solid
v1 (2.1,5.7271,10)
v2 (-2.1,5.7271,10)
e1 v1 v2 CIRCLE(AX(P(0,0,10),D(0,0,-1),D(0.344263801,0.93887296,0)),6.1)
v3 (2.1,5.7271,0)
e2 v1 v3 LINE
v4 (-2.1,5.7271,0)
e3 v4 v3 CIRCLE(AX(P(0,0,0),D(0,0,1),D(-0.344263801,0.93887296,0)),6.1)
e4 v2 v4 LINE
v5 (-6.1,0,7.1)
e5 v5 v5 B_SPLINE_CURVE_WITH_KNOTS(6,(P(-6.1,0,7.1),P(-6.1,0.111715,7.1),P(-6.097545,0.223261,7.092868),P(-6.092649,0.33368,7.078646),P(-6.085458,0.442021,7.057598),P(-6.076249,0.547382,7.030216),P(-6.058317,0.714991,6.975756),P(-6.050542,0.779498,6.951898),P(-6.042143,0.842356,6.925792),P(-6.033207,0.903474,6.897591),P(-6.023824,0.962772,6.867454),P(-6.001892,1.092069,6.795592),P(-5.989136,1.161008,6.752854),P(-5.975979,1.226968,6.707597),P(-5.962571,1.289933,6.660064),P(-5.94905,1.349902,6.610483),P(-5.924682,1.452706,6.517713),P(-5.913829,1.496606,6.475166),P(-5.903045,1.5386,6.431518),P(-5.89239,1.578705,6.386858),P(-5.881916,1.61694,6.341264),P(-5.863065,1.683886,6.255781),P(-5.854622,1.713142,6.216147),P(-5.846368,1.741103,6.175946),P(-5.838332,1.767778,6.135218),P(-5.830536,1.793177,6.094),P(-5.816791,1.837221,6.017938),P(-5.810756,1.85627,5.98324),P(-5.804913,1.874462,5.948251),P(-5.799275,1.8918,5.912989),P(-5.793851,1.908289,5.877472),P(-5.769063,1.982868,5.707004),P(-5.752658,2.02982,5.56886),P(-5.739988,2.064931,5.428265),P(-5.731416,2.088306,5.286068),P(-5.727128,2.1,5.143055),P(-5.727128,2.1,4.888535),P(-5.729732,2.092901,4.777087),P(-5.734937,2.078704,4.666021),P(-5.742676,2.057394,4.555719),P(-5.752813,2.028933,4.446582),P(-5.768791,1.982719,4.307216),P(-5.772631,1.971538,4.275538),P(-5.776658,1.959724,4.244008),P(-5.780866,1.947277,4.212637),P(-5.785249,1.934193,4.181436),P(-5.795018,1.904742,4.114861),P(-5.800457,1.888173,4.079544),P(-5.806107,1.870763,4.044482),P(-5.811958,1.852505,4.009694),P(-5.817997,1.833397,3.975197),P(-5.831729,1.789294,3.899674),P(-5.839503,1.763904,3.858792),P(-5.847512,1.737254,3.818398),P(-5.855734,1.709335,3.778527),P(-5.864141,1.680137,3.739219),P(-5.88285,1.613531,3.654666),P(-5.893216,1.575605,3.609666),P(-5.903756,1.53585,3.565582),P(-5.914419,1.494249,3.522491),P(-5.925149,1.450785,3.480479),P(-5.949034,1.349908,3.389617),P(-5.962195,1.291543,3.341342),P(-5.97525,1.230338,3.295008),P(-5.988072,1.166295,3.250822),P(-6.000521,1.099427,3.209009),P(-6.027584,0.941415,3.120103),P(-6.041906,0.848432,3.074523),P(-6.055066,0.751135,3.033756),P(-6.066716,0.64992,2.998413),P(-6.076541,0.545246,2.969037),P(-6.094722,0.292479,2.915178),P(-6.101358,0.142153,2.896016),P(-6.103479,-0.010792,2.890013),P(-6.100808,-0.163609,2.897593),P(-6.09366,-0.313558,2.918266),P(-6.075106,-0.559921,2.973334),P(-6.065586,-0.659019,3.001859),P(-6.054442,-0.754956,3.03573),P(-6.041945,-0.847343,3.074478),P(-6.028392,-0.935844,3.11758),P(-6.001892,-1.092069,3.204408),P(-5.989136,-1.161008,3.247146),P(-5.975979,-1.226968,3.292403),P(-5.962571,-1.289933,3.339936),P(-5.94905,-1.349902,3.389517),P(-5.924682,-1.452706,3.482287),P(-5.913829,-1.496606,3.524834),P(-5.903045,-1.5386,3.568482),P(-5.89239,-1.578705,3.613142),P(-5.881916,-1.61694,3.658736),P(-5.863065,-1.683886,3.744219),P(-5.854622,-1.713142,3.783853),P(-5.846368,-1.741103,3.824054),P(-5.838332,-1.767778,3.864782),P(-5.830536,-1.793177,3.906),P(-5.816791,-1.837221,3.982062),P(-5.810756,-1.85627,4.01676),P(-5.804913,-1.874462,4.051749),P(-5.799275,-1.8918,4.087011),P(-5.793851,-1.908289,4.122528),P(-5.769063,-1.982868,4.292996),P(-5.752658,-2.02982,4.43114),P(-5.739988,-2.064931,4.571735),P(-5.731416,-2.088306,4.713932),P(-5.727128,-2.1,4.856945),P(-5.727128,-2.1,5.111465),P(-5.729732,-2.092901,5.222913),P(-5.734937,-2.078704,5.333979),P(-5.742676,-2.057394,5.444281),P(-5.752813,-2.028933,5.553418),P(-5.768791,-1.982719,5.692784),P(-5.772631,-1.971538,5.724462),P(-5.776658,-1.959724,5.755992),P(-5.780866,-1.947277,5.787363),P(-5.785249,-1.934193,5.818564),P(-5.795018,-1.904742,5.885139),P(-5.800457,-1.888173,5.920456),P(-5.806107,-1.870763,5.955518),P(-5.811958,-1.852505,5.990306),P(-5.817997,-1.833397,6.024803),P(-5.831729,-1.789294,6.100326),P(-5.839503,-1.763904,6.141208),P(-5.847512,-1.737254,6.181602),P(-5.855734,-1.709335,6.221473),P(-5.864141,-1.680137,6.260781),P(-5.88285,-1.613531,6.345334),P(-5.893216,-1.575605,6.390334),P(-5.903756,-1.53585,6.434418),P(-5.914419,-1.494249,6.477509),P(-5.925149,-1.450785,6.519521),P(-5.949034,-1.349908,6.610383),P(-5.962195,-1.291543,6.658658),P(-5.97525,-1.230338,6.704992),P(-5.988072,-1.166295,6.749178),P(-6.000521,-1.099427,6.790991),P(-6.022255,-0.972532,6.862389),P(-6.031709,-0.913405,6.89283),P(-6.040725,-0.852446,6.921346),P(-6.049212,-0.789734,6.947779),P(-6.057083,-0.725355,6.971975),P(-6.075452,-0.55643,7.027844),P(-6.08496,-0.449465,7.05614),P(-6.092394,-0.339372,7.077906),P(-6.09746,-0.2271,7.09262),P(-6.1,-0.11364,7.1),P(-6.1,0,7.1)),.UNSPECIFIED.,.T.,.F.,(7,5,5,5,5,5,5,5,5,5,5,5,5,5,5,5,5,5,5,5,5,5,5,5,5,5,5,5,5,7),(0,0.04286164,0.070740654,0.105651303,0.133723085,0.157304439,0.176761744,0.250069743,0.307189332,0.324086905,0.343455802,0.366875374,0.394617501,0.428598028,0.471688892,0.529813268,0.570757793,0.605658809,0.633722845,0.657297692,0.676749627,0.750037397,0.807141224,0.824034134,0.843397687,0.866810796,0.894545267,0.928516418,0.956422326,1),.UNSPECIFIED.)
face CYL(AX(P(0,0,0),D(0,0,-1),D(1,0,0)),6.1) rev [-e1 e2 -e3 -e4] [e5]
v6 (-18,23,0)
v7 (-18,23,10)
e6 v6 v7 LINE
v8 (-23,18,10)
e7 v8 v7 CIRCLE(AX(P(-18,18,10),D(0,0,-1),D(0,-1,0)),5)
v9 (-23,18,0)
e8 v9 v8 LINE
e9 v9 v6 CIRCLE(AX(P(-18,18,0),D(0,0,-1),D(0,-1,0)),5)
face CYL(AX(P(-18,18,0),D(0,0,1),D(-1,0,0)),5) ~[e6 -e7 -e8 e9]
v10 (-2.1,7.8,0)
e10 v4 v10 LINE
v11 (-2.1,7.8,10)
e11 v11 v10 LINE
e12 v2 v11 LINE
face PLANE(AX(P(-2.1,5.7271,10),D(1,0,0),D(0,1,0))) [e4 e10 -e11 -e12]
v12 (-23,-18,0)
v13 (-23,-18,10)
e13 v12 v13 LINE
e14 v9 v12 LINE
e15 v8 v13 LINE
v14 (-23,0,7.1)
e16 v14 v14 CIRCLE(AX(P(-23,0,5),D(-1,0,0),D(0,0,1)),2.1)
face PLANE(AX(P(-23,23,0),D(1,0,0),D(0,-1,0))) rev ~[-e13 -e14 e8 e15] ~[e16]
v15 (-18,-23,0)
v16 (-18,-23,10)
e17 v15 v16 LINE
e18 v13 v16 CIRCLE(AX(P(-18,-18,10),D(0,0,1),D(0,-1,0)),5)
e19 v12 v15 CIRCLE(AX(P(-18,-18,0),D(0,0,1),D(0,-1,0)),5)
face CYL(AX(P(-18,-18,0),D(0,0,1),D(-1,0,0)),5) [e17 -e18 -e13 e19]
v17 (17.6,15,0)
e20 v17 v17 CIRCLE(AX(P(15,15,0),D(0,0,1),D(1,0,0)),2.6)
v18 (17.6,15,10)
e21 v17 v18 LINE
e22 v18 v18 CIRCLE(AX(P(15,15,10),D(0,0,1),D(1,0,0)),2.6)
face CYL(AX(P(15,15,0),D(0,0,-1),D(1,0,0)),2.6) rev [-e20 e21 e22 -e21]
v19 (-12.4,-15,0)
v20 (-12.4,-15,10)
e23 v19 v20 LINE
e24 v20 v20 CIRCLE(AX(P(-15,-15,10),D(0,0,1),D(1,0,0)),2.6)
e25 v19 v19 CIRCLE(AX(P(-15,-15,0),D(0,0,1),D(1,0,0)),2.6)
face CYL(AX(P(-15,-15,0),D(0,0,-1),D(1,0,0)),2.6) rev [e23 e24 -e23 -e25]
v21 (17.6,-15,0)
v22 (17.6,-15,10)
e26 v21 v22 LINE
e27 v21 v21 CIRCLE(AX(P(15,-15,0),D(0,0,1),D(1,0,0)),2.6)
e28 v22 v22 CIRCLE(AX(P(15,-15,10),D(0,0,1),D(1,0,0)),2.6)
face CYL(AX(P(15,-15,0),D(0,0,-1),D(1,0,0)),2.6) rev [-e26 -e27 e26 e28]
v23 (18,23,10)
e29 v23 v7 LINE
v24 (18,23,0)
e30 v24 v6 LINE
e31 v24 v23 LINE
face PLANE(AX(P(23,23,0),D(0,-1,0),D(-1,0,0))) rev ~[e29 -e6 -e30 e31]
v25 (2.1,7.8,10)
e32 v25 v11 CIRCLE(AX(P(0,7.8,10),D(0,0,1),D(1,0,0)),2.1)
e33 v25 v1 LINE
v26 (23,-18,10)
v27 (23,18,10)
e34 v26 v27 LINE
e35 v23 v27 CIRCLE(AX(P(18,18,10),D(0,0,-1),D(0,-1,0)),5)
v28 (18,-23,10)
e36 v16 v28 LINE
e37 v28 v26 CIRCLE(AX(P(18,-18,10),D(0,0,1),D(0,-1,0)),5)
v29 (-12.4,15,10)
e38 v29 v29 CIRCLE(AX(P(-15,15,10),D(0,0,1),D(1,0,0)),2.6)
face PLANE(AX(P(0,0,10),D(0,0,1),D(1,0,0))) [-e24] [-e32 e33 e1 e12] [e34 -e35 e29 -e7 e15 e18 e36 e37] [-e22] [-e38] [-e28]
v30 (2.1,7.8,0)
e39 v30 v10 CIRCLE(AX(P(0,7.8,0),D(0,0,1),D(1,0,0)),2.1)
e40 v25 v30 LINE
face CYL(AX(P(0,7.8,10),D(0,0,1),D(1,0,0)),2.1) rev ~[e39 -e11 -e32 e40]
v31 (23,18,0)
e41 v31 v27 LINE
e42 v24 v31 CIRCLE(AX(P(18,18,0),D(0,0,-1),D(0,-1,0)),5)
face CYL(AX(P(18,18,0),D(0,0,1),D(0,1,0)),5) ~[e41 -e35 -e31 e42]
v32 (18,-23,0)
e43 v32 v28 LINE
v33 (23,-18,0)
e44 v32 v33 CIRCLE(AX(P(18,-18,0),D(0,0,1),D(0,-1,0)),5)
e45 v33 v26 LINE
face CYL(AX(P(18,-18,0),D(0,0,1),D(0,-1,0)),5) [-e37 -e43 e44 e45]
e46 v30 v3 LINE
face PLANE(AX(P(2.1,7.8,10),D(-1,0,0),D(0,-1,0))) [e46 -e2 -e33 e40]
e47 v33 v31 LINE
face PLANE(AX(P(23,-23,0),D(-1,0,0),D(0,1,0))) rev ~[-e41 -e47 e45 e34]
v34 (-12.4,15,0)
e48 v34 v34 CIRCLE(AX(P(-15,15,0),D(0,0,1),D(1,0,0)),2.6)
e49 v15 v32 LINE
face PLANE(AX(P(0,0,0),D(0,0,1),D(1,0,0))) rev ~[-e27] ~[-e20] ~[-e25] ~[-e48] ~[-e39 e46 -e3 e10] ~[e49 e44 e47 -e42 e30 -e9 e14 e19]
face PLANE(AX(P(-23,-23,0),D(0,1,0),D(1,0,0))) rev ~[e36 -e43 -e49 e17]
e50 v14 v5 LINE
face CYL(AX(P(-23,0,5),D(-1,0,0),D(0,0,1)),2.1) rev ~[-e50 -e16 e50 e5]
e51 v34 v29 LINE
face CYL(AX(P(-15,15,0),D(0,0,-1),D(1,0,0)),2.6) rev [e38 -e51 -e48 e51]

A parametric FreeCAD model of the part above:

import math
import FreeCAD as App
import Part
import Sketcher

V = App.Vector
Q = App.Units.Quantity


def edges_at(feature, points):
    """Names of the edges that pass closest to the given points."""
    edges = feature.Shape.Edges
    near = lambda p: min(range(len(edges)), key=lambda i: edges[i].distToShape(Part.Vertex(*p))[0])
    return sorted({f"Edge{near(p) + 1}" for p in points})

doc = App.newDocument("Part")
body = doc.addObject("PartDesign::Body", "Body")

# Sketch on XY plane
sketch1 = body.newObject("Sketcher::SketchObject", "Sketch")
sketch1.AttachmentSupport = (doc.getObject("XY_Plane"), [""])
sketch1.MapMode = "FlatFace"
sketch1.addGeometry(Part.LineSegment(V(-23, 23, 0), V(-23, -23, 0)), False)
sketch1.addGeometry(Part.LineSegment(V(-23, -23, 0), V(23, -23, 0)), False)
sketch1.addGeometry(Part.LineSegment(V(23, -23, 0), V(23, 23, 0)), False)
sketch1.addGeometry(Part.LineSegment(V(23, 23, 0), V(-23, 23, 0)), False)
sketch1.addGeometry(Part.Circle(V(-15, -15, 0), V(0, 0, 1), 2.6), False)
sketch1.addGeometry(Part.Circle(V(15, -15, 0), V(0, 0, 1), 2.6), False)
sketch1.addGeometry(Part.Circle(V(-15, 15, 0), V(0, 0, 1), 2.6), False)
sketch1.addGeometry(Part.Circle(V(0, 0, 0), V(0, 0, 1), 6.1), False)
sketch1.addGeometry(Part.Circle(V(15, 15, 0), V(0, 0, 1), 2.6), False)
sketch1.addConstraint(Sketcher.Constraint("Coincident", 0, 2, 1, 1))
sketch1.addConstraint(Sketcher.Constraint("Coincident", 1, 2, 2, 1))
sketch1.addConstraint(Sketcher.Constraint("Coincident", 2, 2, 3, 1))
sketch1.addConstraint(Sketcher.Constraint("Coincident", 3, 2, 0, 1))
sketch1.addConstraint(Sketcher.Constraint("Vertical", 0))
sketch1.addConstraint(Sketcher.Constraint("Horizontal", 1))
sketch1.addConstraint(Sketcher.Constraint("Vertical", 2))
sketch1.addConstraint(Sketcher.Constraint("Horizontal", 3))
sketch1.addConstraint(Sketcher.Constraint("Coincident", 7, 3, -1, 1))
sketch1.addConstraint(Sketcher.Constraint("Equal", 4, 5))
sketch1.addConstraint(Sketcher.Constraint("Equal", 5, 6))
sketch1.addConstraint(Sketcher.Constraint("Equal", 6, 8))
sketch1.addConstraint(Sketcher.Constraint("Symmetric", 5, 3, 6, 3, -1, 1))
sketch1.addConstraint(Sketcher.Constraint("Symmetric", 4, 3, 8, 3, -1, 1))
sketch1.addConstraint(Sketcher.Constraint("Symmetric", 0, 2, 2, 2, -1, 1))
sketch1.addConstraint(Sketcher.Constraint("Symmetric", 4, 3, 5, 3, -2))
sketch1.addConstraint(Sketcher.Constraint("Equal", 3, 0))
sketch1.addConstraint(Sketcher.Constraint("Diameter", 4, Q("5.2 mm")))
sketch1.addConstraint(Sketcher.Constraint("Diameter", 7, Q("12.2 mm")))
sketch1.addConstraint(Sketcher.Constraint("DistanceX", 1, 1, 1, 2, Q("46 mm")))
sketch1.addConstraint(Sketcher.Constraint("DistanceX", 4, 3, 5, 3, Q("30 mm")))
sketch1.addConstraint(Sketcher.Constraint("DistanceY", 4, 3, 6, 3, Q("30 mm")))
pad1 = body.newObject("PartDesign::Pad", "Pad")
pad1.Profile = sketch1
pad1.Length = 10

# Sketch on YZ plane
sketch2 = body.newObject("Sketcher::SketchObject", "Sketch001")
sketch2.AttachmentSupport = (doc.getObject("YZ_Plane"), [""])
sketch2.MapMode = "FlatFace"
sketch2.AttachmentOffset = App.Placement(V(0, 0, -23), App.Rotation())
sketch2.addGeometry(Part.Circle(V(0, 5, 0), V(0, 0, 1), 2.1), False)
sketch2.addConstraint(Sketcher.Constraint("PointOnObject", 0, 3, -2))
sketch2.addConstraint(Sketcher.Constraint("Diameter", 0, Q("4.2 mm")))
sketch2.addConstraint(Sketcher.Constraint("DistanceY", -1, 1, 0, 3, Q("5 mm")))
pocket1 = body.newObject("PartDesign::Pocket", "Pocket")
pocket1.Profile = sketch2
pocket1.Type = "UpToFirst"
pocket1.Reversed = True
doc.recompute()

fillet = body.newObject("PartDesign::Fillet", "Fillet")
fillet.Base = (pocket1, edges_at(pocket1, [
    (23, -23, 5),
    (23, 23, 5),
    (-23, -23, 5),
    (-23, 23, 5),
]))
fillet.Radius = 5

# Sketch on XY plane
sketch3 = body.newObject("Sketcher::SketchObject", "Sketch002")
sketch3.AttachmentSupport = (doc.getObject("XY_Plane"), [""])
sketch3.MapMode = "FlatFace"
sketch3.AttachmentOffset = App.Placement(V(0, 0, 10), App.Rotation())
sketch3.addGeometry(Part.ArcOfCircle(Part.Circle(V(0, 0, 0), V(0, 0, 1), 6.1), math.radians(69.863138), math.radians(110.136862)), False)
sketch3.addGeometry(Part.LineSegment(V(2.1, 5.7271, 0), V(2.1, 7.8, 0)), False)
sketch3.addGeometry(Part.ArcOfCircle(Part.Circle(V(0, 7.8, 0), V(0, 0, 1), 2.1), math.radians(0), math.radians(180)), False)
sketch3.addGeometry(Part.LineSegment(V(-2.1, 7.8, 0), V(-2.1, 5.7271, 0)), False)
sketch3.addConstraint(Sketcher.Constraint("Coincident", 0, 1, 1, 1))
sketch3.addConstraint(Sketcher.Constraint("Tangent", 1, 2, 2, 1))
sketch3.addConstraint(Sketcher.Constraint("Tangent", 2, 2, 3, 1))
sketch3.addConstraint(Sketcher.Constraint("Coincident", 3, 2, 0, 2))
sketch3.addConstraint(Sketcher.Constraint("Vertical", 1))
sketch3.addConstraint(Sketcher.Constraint("Vertical", 3))
sketch3.addConstraint(Sketcher.Constraint("Coincident", 0, 3, -1, 1))
sketch3.addConstraint(Sketcher.Constraint("PointOnObject", 2, 3, -2))
sketch3.addConstraint(Sketcher.Constraint("Radius", 2, Q("2.1 mm")))
sketch3.addConstraint(Sketcher.Constraint("DistanceY", -1, 1, 2, 3, Q("7.8 mm")))
sketch3.addConstraint(Sketcher.Constraint("Radius", 0, Q("6.1 mm")))
pocket2 = body.newObject("PartDesign::Pocket", "Pocket001")
pocket2.Profile = sketch3
pocket2.Length = 10

doc.recompute()
